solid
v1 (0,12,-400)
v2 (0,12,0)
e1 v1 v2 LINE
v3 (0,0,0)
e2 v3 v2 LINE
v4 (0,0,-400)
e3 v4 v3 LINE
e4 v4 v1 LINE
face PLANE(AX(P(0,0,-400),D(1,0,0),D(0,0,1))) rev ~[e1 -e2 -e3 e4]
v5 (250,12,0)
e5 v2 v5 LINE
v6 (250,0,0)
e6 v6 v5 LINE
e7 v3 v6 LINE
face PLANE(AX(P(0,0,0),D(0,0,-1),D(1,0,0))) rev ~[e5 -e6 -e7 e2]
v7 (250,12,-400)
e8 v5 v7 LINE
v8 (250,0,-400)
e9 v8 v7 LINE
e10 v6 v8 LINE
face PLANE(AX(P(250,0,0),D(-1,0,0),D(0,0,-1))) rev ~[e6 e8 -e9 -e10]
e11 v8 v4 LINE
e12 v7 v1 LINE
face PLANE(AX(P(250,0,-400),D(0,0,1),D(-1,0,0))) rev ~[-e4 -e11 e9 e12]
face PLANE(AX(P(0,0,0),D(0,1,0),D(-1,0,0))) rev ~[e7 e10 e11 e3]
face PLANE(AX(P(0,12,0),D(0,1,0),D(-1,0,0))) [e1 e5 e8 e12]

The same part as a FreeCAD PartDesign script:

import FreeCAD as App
import Part
import Sketcher

doc = App.newDocument("Part")
body = doc.addObject("PartDesign::Body", "Body")

# Sketch on XZ plane
sketch1 = body.newObject("Sketcher::SketchObject", "Sketch")
sketch1.AttachmentSupport = (doc.getObject("XZ_Plane"), [""])
sketch1.MapMode = "FlatFace"
sketch1.addGeometry([
    Part.LineSegment(App.Vector(0, -400, 0), App.Vector(0, 0, 0)),
    Part.LineSegment(App.Vector(0, 0, 0), App.Vector(250, 0, 0)),
    Part.LineSegment(App.Vector(250, 0, 0), App.Vector(250, -400, 0)),
    Part.LineSegment(App.Vector(250, -400, 0), App.Vector(0, -400, 0)),
], False)
sketch1.addConstraint([
    Sketcher.Constraint("Coincident", 0, 2, 1, 1),
    Sketcher.Constraint("Coincident", 1, 2, 2, 1),
    Sketcher.Constraint("Coincident", 2, 2, 3, 1),
    Sketcher.Constraint("Coincident", 3, 2, 0, 1),
    Sketcher.Constraint("Vertical", 0),
    Sketcher.Constraint("Horizontal", 1),
    Sketcher.Constraint("Vertical", 2),
    Sketcher.Constraint("Horizontal", 3),
    Sketcher.Constraint("Coincident", 0, 2, -1, 1),
    Sketcher.Constraint("DistanceX", 1, 1, 1, 2, 250.0),
    Sketcher.Constraint("DistanceY", 0, 1, 0, 2, 400.0),
])
pad1 = body.newObject("PartDesign::Pad", "Pad")
pad1.Profile = sketch1
pad1.Length = 12
pad1.Reversed = True

doc.recompute()
